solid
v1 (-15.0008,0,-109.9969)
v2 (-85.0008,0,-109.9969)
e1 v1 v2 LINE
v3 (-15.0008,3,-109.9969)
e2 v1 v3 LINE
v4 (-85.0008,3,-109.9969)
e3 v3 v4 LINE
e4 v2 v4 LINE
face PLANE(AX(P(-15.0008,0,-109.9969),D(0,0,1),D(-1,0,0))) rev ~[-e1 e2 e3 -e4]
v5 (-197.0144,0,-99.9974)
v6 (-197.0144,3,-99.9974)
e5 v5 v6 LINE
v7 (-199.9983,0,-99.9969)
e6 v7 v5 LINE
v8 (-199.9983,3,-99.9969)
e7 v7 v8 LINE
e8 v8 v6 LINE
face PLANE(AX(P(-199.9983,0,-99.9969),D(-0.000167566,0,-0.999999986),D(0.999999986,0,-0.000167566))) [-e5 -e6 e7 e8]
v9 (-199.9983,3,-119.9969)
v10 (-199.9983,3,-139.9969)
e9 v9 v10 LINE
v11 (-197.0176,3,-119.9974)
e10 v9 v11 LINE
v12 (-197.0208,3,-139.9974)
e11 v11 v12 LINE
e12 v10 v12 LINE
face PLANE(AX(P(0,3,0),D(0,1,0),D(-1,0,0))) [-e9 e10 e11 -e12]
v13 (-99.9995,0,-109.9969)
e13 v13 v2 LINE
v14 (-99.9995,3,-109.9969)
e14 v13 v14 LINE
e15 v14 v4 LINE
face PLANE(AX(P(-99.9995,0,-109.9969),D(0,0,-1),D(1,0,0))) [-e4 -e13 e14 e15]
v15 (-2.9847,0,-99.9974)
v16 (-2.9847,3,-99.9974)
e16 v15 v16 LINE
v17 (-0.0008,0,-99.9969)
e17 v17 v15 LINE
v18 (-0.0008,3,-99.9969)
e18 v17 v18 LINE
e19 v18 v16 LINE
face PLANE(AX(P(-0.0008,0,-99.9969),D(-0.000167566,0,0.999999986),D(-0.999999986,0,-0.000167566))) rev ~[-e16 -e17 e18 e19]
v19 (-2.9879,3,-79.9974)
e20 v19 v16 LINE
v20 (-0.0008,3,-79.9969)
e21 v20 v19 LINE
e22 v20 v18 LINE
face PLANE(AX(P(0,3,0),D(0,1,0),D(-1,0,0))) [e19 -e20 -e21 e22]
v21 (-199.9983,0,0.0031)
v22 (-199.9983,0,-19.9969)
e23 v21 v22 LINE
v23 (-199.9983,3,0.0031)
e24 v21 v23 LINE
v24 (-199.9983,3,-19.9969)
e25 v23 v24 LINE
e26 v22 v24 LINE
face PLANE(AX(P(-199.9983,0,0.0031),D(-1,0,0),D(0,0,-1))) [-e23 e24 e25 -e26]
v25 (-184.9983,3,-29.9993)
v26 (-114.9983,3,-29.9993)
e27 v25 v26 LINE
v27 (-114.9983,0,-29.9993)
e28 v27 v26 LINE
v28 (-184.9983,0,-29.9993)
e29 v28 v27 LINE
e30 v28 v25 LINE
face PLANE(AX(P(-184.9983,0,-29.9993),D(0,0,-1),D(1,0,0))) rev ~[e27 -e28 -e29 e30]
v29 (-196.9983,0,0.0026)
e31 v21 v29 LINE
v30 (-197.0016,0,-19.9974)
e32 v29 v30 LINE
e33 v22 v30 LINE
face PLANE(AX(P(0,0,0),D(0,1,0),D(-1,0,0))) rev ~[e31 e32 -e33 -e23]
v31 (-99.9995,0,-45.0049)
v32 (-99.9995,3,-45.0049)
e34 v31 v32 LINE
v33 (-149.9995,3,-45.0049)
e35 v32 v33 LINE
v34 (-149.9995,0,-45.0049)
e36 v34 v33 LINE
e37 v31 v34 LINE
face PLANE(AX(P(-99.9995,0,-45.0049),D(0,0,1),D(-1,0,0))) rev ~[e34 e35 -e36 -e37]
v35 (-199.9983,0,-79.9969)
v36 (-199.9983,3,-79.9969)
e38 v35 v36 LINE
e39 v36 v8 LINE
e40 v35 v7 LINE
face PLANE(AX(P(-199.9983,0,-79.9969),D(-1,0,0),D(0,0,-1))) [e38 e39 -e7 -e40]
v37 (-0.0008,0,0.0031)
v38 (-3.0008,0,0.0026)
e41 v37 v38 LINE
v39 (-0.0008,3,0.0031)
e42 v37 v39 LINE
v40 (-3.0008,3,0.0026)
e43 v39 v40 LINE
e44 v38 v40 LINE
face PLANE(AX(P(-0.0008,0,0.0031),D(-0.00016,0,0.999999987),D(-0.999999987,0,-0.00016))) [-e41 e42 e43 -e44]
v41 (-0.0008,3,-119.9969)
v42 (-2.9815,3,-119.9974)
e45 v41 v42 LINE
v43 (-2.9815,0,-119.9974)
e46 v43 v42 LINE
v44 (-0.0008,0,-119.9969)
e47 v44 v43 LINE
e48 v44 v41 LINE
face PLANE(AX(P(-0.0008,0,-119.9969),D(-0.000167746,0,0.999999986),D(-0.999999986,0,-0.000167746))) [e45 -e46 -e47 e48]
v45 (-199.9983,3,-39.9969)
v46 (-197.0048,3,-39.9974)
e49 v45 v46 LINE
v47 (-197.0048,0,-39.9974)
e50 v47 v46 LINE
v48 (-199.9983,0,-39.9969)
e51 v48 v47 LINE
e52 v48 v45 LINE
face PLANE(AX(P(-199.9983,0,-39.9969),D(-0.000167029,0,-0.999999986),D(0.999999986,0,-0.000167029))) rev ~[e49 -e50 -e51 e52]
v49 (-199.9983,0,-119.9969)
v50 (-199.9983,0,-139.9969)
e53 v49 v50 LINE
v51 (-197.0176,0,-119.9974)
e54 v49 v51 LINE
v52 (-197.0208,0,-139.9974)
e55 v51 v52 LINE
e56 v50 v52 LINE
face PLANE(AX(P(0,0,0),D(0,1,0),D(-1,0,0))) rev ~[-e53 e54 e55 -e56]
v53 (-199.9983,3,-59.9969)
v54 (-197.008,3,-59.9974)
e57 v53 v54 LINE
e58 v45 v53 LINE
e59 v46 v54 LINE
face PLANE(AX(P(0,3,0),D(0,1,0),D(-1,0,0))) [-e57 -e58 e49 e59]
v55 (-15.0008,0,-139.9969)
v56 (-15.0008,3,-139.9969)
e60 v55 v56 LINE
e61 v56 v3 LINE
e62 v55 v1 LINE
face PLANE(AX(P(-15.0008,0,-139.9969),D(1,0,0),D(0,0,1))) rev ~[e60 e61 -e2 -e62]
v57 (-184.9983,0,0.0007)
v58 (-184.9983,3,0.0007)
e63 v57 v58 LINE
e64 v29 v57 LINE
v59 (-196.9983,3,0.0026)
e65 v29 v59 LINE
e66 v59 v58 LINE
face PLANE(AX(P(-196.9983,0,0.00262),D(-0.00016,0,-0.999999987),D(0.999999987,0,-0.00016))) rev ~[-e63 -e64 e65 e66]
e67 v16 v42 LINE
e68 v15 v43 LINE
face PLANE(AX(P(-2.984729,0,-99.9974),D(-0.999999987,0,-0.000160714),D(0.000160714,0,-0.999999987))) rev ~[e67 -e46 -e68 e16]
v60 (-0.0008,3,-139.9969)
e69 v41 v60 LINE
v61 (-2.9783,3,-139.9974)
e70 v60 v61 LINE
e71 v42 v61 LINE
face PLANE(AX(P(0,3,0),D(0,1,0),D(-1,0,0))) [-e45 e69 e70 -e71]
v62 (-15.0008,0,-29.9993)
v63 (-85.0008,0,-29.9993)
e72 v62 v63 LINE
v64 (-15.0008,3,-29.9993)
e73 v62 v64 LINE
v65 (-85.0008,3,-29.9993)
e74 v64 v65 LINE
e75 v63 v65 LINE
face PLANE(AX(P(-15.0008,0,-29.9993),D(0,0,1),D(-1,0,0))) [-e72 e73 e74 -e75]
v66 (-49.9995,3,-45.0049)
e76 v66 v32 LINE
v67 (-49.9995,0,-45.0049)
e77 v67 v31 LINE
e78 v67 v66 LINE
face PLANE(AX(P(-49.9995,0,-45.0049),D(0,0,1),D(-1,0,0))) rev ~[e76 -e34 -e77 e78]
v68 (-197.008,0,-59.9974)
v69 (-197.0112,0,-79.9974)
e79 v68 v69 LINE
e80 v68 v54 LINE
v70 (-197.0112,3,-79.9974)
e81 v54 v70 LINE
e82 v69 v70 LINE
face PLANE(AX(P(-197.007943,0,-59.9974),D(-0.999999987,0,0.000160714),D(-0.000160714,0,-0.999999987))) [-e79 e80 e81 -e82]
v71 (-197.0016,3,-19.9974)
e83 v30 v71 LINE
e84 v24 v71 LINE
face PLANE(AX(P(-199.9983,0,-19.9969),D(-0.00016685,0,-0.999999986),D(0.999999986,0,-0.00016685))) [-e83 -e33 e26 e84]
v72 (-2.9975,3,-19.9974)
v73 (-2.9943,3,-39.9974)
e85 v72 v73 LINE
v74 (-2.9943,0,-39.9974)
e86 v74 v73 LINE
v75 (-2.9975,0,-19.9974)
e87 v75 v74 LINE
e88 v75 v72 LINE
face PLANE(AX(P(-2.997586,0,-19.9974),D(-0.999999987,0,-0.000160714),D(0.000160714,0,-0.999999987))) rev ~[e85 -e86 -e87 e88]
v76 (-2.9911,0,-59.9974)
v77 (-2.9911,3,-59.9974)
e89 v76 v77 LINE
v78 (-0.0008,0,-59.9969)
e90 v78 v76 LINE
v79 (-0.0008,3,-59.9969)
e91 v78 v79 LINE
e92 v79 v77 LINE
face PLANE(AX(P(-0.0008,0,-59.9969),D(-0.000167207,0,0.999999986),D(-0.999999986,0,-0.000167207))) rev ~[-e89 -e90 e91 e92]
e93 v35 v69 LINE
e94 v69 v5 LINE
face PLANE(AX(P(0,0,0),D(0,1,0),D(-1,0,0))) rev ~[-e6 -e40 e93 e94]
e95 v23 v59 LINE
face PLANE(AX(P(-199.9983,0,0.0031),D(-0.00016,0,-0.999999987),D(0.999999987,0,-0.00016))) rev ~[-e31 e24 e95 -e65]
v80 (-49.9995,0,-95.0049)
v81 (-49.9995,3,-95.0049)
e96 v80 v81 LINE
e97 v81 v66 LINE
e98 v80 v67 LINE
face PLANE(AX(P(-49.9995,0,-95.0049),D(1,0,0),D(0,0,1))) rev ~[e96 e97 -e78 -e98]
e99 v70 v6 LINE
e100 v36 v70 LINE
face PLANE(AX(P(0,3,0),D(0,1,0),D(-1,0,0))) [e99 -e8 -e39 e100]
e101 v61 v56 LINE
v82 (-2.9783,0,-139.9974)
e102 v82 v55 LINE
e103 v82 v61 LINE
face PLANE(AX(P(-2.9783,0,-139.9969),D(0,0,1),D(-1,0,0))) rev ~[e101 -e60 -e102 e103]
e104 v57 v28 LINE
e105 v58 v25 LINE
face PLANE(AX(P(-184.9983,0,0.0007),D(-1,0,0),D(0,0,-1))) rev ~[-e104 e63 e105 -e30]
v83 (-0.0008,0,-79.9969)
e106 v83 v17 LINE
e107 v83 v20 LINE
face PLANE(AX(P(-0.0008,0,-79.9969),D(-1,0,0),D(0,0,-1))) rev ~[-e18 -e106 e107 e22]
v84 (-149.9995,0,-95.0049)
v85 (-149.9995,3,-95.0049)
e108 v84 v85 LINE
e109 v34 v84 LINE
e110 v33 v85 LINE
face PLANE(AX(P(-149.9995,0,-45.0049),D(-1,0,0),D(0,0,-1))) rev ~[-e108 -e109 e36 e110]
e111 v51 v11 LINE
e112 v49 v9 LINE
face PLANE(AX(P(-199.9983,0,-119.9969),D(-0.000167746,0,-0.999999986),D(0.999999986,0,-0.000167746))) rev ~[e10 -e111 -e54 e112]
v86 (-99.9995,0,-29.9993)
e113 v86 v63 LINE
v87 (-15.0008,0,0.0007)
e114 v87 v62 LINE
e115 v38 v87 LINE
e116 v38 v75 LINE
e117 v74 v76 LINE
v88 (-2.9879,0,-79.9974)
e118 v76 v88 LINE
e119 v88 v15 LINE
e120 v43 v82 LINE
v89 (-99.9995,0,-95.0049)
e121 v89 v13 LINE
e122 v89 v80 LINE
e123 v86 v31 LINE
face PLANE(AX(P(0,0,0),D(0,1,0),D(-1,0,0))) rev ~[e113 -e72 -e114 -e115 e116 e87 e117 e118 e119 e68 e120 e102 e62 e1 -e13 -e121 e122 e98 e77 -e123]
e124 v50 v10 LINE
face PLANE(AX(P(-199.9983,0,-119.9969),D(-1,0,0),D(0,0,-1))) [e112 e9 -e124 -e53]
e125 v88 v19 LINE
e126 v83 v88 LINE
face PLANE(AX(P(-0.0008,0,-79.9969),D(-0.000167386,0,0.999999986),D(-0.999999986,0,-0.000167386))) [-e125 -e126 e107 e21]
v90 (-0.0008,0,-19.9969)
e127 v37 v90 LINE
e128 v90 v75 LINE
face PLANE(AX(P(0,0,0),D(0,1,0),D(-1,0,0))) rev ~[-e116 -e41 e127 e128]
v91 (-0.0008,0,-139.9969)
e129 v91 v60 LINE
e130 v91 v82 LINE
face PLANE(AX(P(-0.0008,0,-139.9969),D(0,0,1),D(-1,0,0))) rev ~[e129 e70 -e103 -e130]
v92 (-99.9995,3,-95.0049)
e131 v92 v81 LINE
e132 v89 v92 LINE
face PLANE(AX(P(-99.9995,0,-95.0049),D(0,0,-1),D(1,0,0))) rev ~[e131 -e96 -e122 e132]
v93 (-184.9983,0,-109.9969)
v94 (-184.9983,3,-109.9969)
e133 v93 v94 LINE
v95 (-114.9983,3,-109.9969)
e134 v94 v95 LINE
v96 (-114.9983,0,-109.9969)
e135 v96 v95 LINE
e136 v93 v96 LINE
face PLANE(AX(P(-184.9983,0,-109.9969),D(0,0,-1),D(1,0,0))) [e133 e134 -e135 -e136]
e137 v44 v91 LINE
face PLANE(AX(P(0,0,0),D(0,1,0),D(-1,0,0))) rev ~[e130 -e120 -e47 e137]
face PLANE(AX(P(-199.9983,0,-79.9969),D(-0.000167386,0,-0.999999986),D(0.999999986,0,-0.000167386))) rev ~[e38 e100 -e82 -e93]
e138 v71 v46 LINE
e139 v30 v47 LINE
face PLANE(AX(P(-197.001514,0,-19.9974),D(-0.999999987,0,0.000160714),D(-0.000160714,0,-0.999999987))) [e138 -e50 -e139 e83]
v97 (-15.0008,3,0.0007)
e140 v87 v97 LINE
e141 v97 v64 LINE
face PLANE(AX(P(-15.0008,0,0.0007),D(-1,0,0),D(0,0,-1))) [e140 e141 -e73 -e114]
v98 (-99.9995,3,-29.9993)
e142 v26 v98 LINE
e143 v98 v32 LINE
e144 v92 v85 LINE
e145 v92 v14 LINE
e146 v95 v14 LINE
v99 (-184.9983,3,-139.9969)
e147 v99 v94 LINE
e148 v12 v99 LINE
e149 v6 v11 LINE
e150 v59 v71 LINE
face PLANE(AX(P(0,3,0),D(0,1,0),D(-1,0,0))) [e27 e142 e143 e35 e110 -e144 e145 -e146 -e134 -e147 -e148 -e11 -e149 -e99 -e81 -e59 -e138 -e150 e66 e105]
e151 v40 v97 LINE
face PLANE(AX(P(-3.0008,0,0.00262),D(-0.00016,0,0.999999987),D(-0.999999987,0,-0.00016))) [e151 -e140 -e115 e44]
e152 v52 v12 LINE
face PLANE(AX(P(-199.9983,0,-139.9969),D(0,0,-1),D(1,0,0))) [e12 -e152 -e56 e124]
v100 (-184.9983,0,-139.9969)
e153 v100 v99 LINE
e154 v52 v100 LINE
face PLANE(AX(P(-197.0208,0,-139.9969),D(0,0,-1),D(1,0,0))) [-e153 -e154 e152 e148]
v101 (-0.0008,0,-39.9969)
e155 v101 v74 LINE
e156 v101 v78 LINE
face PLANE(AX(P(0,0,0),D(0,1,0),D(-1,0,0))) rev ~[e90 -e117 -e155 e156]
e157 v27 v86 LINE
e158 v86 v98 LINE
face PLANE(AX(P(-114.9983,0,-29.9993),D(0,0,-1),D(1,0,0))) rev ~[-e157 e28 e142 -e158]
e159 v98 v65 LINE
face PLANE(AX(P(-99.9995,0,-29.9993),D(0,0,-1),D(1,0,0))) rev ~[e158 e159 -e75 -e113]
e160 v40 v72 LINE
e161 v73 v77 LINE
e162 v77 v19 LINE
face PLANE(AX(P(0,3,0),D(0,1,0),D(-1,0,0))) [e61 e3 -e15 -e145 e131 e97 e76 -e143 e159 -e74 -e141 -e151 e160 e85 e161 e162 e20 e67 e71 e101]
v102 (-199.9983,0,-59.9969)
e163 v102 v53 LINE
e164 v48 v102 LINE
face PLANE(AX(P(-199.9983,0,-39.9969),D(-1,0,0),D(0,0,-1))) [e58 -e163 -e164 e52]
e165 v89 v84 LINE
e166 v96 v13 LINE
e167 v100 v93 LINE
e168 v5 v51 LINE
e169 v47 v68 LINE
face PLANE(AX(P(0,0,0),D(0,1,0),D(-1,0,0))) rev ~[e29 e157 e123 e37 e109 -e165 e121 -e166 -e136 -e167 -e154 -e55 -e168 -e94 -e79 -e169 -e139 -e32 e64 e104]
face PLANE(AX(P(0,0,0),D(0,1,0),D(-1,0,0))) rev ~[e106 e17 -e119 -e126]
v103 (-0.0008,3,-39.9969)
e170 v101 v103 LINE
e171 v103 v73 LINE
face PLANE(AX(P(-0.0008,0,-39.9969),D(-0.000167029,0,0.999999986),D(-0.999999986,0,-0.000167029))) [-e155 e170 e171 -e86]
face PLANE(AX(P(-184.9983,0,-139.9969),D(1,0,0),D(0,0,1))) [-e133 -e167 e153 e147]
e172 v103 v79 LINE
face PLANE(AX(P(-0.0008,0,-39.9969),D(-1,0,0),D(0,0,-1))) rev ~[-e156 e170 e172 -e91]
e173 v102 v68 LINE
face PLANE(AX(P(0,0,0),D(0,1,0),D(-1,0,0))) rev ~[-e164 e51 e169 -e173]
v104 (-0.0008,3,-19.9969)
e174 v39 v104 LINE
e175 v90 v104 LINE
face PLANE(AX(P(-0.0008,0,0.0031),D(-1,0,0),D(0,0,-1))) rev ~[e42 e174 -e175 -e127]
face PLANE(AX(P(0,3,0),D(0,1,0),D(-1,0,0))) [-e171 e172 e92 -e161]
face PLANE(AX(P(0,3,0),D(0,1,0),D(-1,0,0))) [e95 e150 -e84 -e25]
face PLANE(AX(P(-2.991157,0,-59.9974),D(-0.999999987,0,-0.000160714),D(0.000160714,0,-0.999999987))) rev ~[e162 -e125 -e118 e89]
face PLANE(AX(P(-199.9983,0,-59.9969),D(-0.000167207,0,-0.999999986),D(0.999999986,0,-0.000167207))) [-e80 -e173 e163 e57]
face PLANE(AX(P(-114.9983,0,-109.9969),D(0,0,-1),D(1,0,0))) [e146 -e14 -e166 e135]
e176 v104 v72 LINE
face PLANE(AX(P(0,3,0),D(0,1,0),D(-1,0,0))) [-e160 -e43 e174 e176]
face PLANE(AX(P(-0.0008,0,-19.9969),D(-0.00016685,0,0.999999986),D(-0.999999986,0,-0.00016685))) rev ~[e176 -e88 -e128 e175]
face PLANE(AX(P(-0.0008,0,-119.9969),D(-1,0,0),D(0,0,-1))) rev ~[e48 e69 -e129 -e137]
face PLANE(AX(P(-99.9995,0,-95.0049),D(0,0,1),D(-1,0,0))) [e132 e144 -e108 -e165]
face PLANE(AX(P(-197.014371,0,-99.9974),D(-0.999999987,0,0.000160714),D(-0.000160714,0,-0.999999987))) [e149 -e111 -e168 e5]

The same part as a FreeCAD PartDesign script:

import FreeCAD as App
import Part
import Sketcher


def add_polygon(sketch, points):
    """Adds a closed chain of lines whose ends are joined by coincident constraints."""
    first, n = sketch.GeometryCount, len(points)
    for a, b in zip(points, points[1:] + points[:1]):
        sketch.addGeometry(Part.LineSegment(App.Vector(*a, 0), App.Vector(*b, 0)), False)
    for i in range(n):
        sketch.addConstraint(Sketcher.Constraint("Coincident", first + i, 2, first + (i + 1) % n, 1))

doc = App.newDocument("Part")
params = doc.addObject("Spreadsheet::Sheet", "Params")
for row, (alias, value) in enumerate([
    ("sketch1_width", "15 mm"),
    ("sketch1_width2", "15 mm"),
    ("sketch1_width3", "100 mm"),
    ("sketch1_height", "20 mm"),
    ("sketch1_height2", "30 mm"),
    ("pad1_length", "3 mm"),
], start=1):
    params.set(f"A{row}", alias)
    params.set(f"B{row}", "=" + value)
    params.setAlias(f"B{row}", alias)

body = doc.addObject("PartDesign::Body", "Body")

# Sketch on XZ plane
sketch1 = body.newObject("Sketcher::SketchObject", "Sketch")
sketch1.AttachmentSupport = (doc.getObject("XZ_Plane"), [""])
sketch1.MapMode = "FlatFace"
add_polygon(sketch1, [(-199.9983, -19.9969), (-199.9983, 0.0031), (-184.9983, 0.0007), (-184.9983, -29.9993), (-15.0008, -29.9993), (-15.0008, 0.0007), (-0.0008, 0.0031), (-0.0008, -19.9969), (-2.997586, -19.9974), (-2.9943, -39.9974), (-0.0008, -39.9969), (-0.0008, -59.9969), (-2.991157, -59.9974), (-2.9879, -79.9974), (-0.0008, -79.9969), (-0.0008, -99.9969), (-2.984729, -99.9974), (-2.9815, -119.9974), (-0.0008, -119.9969), (-0.0008, -139.9969), (-15.0008, -139.9969), (-15.0008, -109.9969), (-184.9983, -109.9969), (-184.9983, -139.9969), (-199.9983, -139.9969), (-199.9983, -119.9969), (-197.017586, -119.9974), (-197.0144, -99.9974), (-199.9983, -99.9969), (-199.9983, -79.9969), (-197.011157, -79.9974), (-197.008, -59.9974), (-199.9983, -59.9969), (-199.9983, -39.9969), (-197.004729, -39.9974), (-197.0016, -19.9974)])  # lines 0-35
add_polygon(sketch1, [(-149.9995, -95.0049), (-49.9995, -95.0049), (-49.9995, -45.0049), (-149.9995, -45.0049)])  # lines 36-39
sketch1.addConstraint(Sketcher.Constraint("Vertical", 0))
sketch1.addConstraint(Sketcher.Constraint("Vertical", 2))
sketch1.addConstraint(Sketcher.Constraint("Horizontal", 3))
sketch1.addConstraint(Sketcher.Constraint("Vertical", 4))
sketch1.addConstraint(Sketcher.Constraint("Vertical", 6))
sketch1.addConstraint(Sketcher.Constraint("Vertical", 10))
sketch1.addConstraint(Sketcher.Constraint("Vertical", 14))
sketch1.addConstraint(Sketcher.Constraint("Vertical", 18))
sketch1.addConstraint(Sketcher.Constraint("Horizontal", 19))
sketch1.addConstraint(Sketcher.Constraint("Vertical", 20))
sketch1.addConstraint(Sketcher.Constraint("Horizontal", 21))
sketch1.addConstraint(Sketcher.Constraint("Vertical", 22))
sketch1.addConstraint(Sketcher.Constraint("Horizontal", 23))
sketch1.addConstraint(Sketcher.Constraint("Vertical", 24))
sketch1.addConstraint(Sketcher.Constraint("Vertical", 28))
sketch1.addConstraint(Sketcher.Constraint("Vertical", 32))
sketch1.addConstraint(Sketcher.Constraint("Horizontal", 36))
sketch1.addConstraint(Sketcher.Constraint("Vertical", 37))
sketch1.addConstraint(Sketcher.Constraint("Horizontal", 38))
sketch1.addConstraint(Sketcher.Constraint("Vertical", 39))
sketch1.addConstraint(Sketcher.Constraint("DistanceX", 19, 2, 19, 1, 15.0))
sketch1.addConstraint(Sketcher.Constraint("DistanceX", 23, 2, 23, 1, 15.0))
sketch1.addConstraint(Sketcher.Constraint("DistanceX", 36, 1, 36, 2, 100.0))
sketch1.addConstraint(Sketcher.Constraint("DistanceY", 0, 1, 0, 2, 20.0))
sketch1.addConstraint(Sketcher.Constraint("DistanceY", 2, 2, 2, 1, 30.0))
sketch1.addConstraint(Sketcher.Constraint("DistanceY", 4, 1, 4, 2, 30.0))
sketch1.addConstraint(Sketcher.Constraint("DistanceY", 6, 2, 6, 1, 20.0))
sketch1.addConstraint(Sketcher.Constraint("DistanceY", 10, 2, 10, 1, 20.0))
sketch1.addConstraint(Sketcher.Constraint("DistanceY", 14, 2, 14, 1, 20.0))
sketch1.addConstraint(Sketcher.Constraint("DistanceY", 18, 2, 18, 1, 20.0))
sketch1.addConstraint(Sketcher.Constraint("DistanceY", 20, 1, 20, 2, 30.0))
sketch1.addConstraint(Sketcher.Constraint("DistanceY", 22, 2, 22, 1, 30.0))
sketch1.addConstraint(Sketcher.Constraint("DistanceY", 24, 1, 24, 2, 20.0))
sketch1.addConstraint(Sketcher.Constraint("DistanceY", 28, 1, 28, 2, 20.0))
sketch1.addConstraint(Sketcher.Constraint("DistanceY", 32, 1, 32, 2, 20.0))
sketch1.addConstraint(Sketcher.Constraint("DistanceY", 37, 1, 37, 2, 50.0))
sketch1.addConstraint(Sketcher.Constraint("Distance", 1, 15.0))
sketch1.addConstraint(Sketcher.Constraint("Distance", 5, 15.0))
sketch1.addConstraint(Sketcher.Constraint("Distance", 8, 20.0))
sketch1.addConstraint(Sketcher.Constraint("Distance", 12, 20.0))
sketch1.addConstraint(Sketcher.Constraint("Distance", 16, 20.0))
sketch1.addConstraint(Sketcher.Constraint("Distance", 26, 20.0))
sketch1.addConstraint(Sketcher.Constraint("Distance", 30, 20.0))
sketch1.addConstraint(Sketcher.Constraint("Distance", 34, 20.0))
sketch1.addConstraint(Sketcher.Constraint("DistanceX", 3, 2, 9, 2, 15.0))
sketch1.addConstraint(Sketcher.Constraint("DistanceY", 9, 2, 6, 2, 20.0))
sketch1.addConstraint(Sketcher.Constraint("DistanceY", 11, 2, 8, 2, 20.0))
sketch1.addConstraint(Sketcher.Constraint("DistanceY", 13, 2, 10, 2, 20.0))
sketch1.addConstraint(Sketcher.Constraint("DistanceY", 15, 2, 12, 2, 20.0))
sketch1.addConstraint(Sketcher.Constraint("DistanceY", 17, 2, 14, 2, 20.0))
sketch1.addConstraint(Sketcher.Constraint("DistanceX", 19, 2, 14, 2, 15.0))
sketch1.addConstraint(Sketcher.Constraint("DistanceX", 0, 2, 21, 2, 15.0))
sketch1.addConstraint(Sketcher.Constraint("DistanceY", 22, 2, 0, 2, 140.0))
sketch1.addConstraint(Sketcher.Constraint("DistanceX", 27, 2, 21, 2, 15.0))
sketch1.addConstraint(Sketcher.Constraint("DistanceY", 24, 2, 27, 2, 20.0))
sketch1.addConstraint(Sketcher.Constraint("DistanceY", 26, 2, 29, 2, 20.0))
sketch1.addConstraint(Sketcher.Constraint("DistanceY", 28, 2, 31, 2, 20.0))
sketch1.addConstraint(Sketcher.Constraint("DistanceX", 31, 2, 2, 2, 15.0))
sketch1.addConstraint(Sketcher.Constraint("DistanceY", 30, 2, 33, 2, 20.0))
sketch1.addConstraint(Sketcher.Constraint("DistanceX", 36, 2, -1, 1, 49.9995))
sketch1.addConstraint(Sketcher.Constraint("DistanceY", 7, 2, 5, 2, 20.0005))
sketch1.addConstraint(Sketcher.Constraint("DistanceY", 23, 2, 25, 2, 19.9995))
sketch1.addConstraint(Sketcher.Constraint("Distance", 13, 2.987))
sketch1.addConstraint(Sketcher.Constraint("Distance", 15, 2.984))
sketch1.addConstraint(Sketcher.Constraint("Distance", 27, 2.984))
sketch1.addConstraint(Sketcher.Constraint("Distance", 29, 2.987))
sketch1.addConstraint(Sketcher.Constraint("DistanceX", 3, 1, 3, 2, 169.9975))
sketch1.addConstraint(Sketcher.Constraint("DistanceX", 21, 2, 21, 1, 169.9975))
sketch1.addConstraint(Sketcher.Constraint("DistanceY", -1, 1, 0, 2, 0.003))
sketch1.addConstraint(Sketcher.Constraint("DistanceX", 11, 2, -1, 1, 2.991))
sketch1.addConstraint(Sketcher.Constraint("DistanceX", 12, 2, -1, 1, 2.988))
sketch1.addConstraint(Sketcher.Constraint("DistanceX", 30, 2, -1, 1, 197.008))
sketch1.addConstraint(Sketcher.Constraint("DistanceY", 36, 2, -1, 1, 95.005))
sketch1.addConstraint(Sketcher.Constraint("DistanceY", 3, 2, 7, 2, 10.002))
sketch1.addConstraint(Sketcher.Constraint("Distance", 7, 2.9967))
sketch1.addConstraint(Sketcher.Constraint("Distance", 9, 2.9935))
sketch1.addConstraint(Sketcher.Constraint("Distance", 17, 2.9807))
sketch1.addConstraint(Sketcher.Constraint("Distance", 25, 2.9807))
sketch1.addConstraint(Sketcher.Constraint("Distance", 33, 2.9935))
sketch1.addConstraint(Sketcher.Constraint("Distance", 35, 2.9967))
sketch1.setExpression("Constraints[60]", "Params.sketch1_width")
sketch1.setExpression("Constraints[61]", "Params.sketch1_width2")
sketch1.setExpression("Constraints[62]", "Params.sketch1_width3")
sketch1.setExpression("Constraints[63]", "Params.sketch1_height")
sketch1.setExpression("Constraints[64]", "Params.sketch1_height2")
pad1 = body.newObject("PartDesign::Pad", "Pad")
pad1.Profile = sketch1
pad1.setExpression("Length", "Params.pad1_length")
pad1.Reversed = True

doc.recompute()
